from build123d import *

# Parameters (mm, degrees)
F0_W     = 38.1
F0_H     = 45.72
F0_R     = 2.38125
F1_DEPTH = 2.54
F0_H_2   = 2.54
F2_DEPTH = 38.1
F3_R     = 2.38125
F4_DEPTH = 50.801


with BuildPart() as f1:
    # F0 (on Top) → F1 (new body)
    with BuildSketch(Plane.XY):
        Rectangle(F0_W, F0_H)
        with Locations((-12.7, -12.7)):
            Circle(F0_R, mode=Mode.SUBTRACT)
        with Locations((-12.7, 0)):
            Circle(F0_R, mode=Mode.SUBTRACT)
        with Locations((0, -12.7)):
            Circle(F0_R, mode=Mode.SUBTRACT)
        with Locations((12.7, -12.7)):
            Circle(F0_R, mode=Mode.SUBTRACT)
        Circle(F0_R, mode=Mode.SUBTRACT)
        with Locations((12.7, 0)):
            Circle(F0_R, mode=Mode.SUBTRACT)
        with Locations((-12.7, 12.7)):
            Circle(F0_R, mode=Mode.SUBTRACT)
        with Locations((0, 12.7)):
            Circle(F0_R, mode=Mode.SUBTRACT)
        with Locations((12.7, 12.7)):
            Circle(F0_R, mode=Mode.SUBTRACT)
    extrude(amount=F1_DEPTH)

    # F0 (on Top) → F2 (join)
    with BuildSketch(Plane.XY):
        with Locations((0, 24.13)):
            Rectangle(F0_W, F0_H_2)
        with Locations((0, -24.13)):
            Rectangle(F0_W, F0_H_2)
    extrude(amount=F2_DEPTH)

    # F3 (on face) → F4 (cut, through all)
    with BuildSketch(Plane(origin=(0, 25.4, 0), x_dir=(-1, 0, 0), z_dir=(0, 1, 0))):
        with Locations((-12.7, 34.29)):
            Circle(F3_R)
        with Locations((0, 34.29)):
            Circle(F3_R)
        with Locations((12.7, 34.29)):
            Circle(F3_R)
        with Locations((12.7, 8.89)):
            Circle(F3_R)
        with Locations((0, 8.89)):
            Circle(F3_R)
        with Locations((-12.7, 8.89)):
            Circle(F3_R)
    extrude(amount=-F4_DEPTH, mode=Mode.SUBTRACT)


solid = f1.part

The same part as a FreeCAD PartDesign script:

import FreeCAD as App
import Part
import Sketcher

V = App.Vector
Q = App.Units.Quantity

doc = App.newDocument("Part")
body = doc.addObject("PartDesign::Body", "Body")

sketch1 = doc.addObject("Sketcher::SketchObject", "Sketch")
body.addObject(sketch1)
sketch1.AttachmentSupport = (doc.XY_Plane, [""])
sketch1.MapMode = "FlatFace"
sketch1.addGeometry([
    Part.LineSegment(V(-19.1, 22.9, 0), V(-19.1, -22.9, 0)),
    Part.LineSegment(V(-19.1, -22.9, 0), V(19.1, -22.9, 0)),
    Part.LineSegment(V(19.1, -22.9, 0), V(19.1, 22.9, 0)),
    Part.LineSegment(V(19.1, 22.9, 0), V(-19.1, 22.9, 0)),
    Part.Circle(V(-12.7, -12.7, 0), V(0, 0, 1), 2.4),
    Part.Circle(V(0, -12.7, 0), V(0, 0, 1), 2.4),
    Part.Circle(V(12.7, -12.7, 0), V(0, 0, 1), 2.4),
    Part.Circle(V(-12.7, 0, 0), V(0, 0, 1), 2.4),
    Part.Circle(V(-12.7, 12.7, 0), V(0, 0, 1), 2.4),
    Part.Circle(V(0, 0, 0), V(0, 0, 1), 2.4),
    Part.Circle(V(12.7, 0, 0), V(0, 0, 1), 2.4),
    Part.Circle(V(0, 12.7, 0), V(0, 0, 1), 2.4),
    Part.Circle(V(12.7, 12.7, 0), V(0, 0, 1), 2.4),
], False)
sketch1.addConstraint([
    Sketcher.Constraint("Coincident", 0, 2, 1, 1),
    Sketcher.Constraint("Coincident", 1, 2, 2, 1),
    Sketcher.Constraint("Coincident", 2, 2, 3, 1),
    Sketcher.Constraint("Coincident", 3, 2, 0, 1),
    Sketcher.Constraint("Vertical", 0),
    Sketcher.Constraint("Horizontal", 1),
    Sketcher.Constraint("Vertical", 2),
    Sketcher.Constraint("Horizontal", 3),
    Sketcher.Constraint("Coincident", 9, 3, -1, 1),
    Sketcher.Constraint("Equal", 4, 5),
    Sketcher.Constraint("Equal", 5, 6),
    Sketcher.Constraint("Equal", 6, 7),
    Sketcher.Constraint("Equal", 7, 8),
    Sketcher.Constraint("Equal", 8, 9),
    Sketcher.Constraint("Equal", 9, 10),
    Sketcher.Constraint("Equal", 10, 11),
    Sketcher.Constraint("Equal", 11, 12),
    Sketcher.Constraint("Symmetric", 6, 3, 8, 3, -1, 1),
    Sketcher.Constraint("Symmetric", 7, 3, 10, 3, -1, 1),
    Sketcher.Constraint("Symmetric", 5, 3, 11, 3, -1, 1),
    Sketcher.Constraint("Symmetric", 4, 3, 12, 3, -1, 1),
    Sketcher.Constraint("Symmetric", 0, 2, 2, 2, -1, 1),
    Sketcher.Constraint("Symmetric", 4, 3, 6, 3, -2),
    Sketcher.Constraint("PointOnObject", 5, 3, -2),
    Sketcher.Constraint("PointOnObject", 7, 3, -1),
    Sketcher.Constraint("Horizontal", 4, 3, 5, 3),
    Sketcher.Constraint("Vertical", 4, 3, 7, 3),
    Sketcher.Constraint("Diameter", 4, Q("0.1875 in")),
    Sketcher.Constraint("DistanceX", 1, 1, 1, 2, Q("1.5 in")),
    Sketcher.Constraint("DistanceY", 0, 2, 0, 1, Q("1.8 in")),
    Sketcher.Constraint("DistanceX", 4, 3, 6, 3, Q("1 in")),
    Sketcher.Constraint("DistanceY", 4, 3, 8, 3, Q("1 in")),
])
pad1 = doc.addObject("PartDesign::Pad", "Pad")
body.addObject(pad1)
pad1.Profile = sketch1
pad1.Length = Q("0.1 in")

sketch2 = doc.addObject("Sketcher::SketchObject", "Sketch001")
body.addObject(sketch2)
sketch2.AttachmentSupport = (doc.XY_Plane, [""])
sketch2.MapMode = "FlatFace"
sketch2.addGeometry([
    Part.LineSegment(V(-19.1, 25.4, 0), V(-19.1, 22.9, 0)),
    Part.LineSegment(V(-19.1, 22.9, 0), V(19.1, 22.9, 0)),
    Part.LineSegment(V(19.1, 22.9, 0), V(19.1, 25.4, 0)),
    Part.LineSegment(V(19.1, 25.4, 0), V(-19.1, 25.4, 0)),
    Part.LineSegment(V(-19.1, -22.9, 0), V(-19.1, -25.4, 0)),
    Part.LineSegment(V(-19.1, -25.4, 0), V(19.1, -25.4, 0)),
    Part.LineSegment(V(19.1, -25.4, 0), V(19.1, -22.9, 0)),
    Part.LineSegment(V(19.1, -22.9, 0), V(-19.1, -22.9, 0)),
], False)
sketch2.addConstraint([
    Sketcher.Constraint("Coincident", 0, 2, 1, 1),
    Sketcher.Constraint("Coincident", 1, 2, 2, 1),
    Sketcher.Constraint("Coincident", 2, 2, 3, 1),
    Sketcher.Constraint("Coincident", 3, 2, 0, 1),
    Sketcher.Constraint("Coincident", 4, 2, 5, 1),
    Sketcher.Constraint("Coincident", 5, 2, 6, 1),
    Sketcher.Constraint("Coincident", 6, 2, 7, 1),
    Sketcher.Constraint("Coincident", 7, 2, 4, 1),
    Sketcher.Constraint("Vertical", 0),
    Sketcher.Constraint("Horizontal", 1),
    Sketcher.Constraint("Vertical", 2),
    Sketcher.Constraint("Horizontal", 3),
    Sketcher.Constraint("Vertical", 4),
    Sketcher.Constraint("Horizontal", 5),
    Sketcher.Constraint("Vertical", 6),
    Sketcher.Constraint("Horizontal", 7),
    Sketcher.Constraint("Symmetric", 2, 2, 4, 2, -1, 1),
    Sketcher.Constraint("Symmetric", 0, 2, 6, 2, -1, 1),
    Sketcher.Constraint("Vertical", 3, 2, 4, 2),
    Sketcher.Constraint("DistanceX", 1, 1, 1, 2, Q("1.5 in")),
    Sketcher.Constraint("DistanceY", 0, 2, 0, 1, Q("0.1 in")),
    Sketcher.Constraint("DistanceY", -1, 1, 2, 2, Q("1 in")),
])
pad2 = doc.addObject("PartDesign::Pad", "Pad001")
body.addObject(pad2)
pad2.Profile = sketch2
pad2.Length = Q("1.5 in")

sketch3 = doc.addObject("Sketcher::SketchObject", "Sketch002")
body.addObject(sketch3)
sketch3.AttachmentSupport = (doc.XZ_Plane, [""])
sketch3.MapMode = "FlatFace"
sketch3.AttachmentOffset = App.Placement(V(0, 0, -1 * 25.4), App.Rotation())
sketch3.addGeometry([
    Part.Circle(V(12.7, 34.3, 0), V(0, 0, 1), 2.4),
    Part.Circle(V(0, 34.3, 0), V(0, 0, 1), 2.4),
    Part.Circle(V(-12.7, 34.3, 0), V(0, 0, 1), 2.4),
    Part.Circle(V(-12.7, 8.9, 0), V(0, 0, 1), 2.4),
    Part.Circle(V(0, 8.9, 0), V(0, 0, 1), 2.4),
    Part.Circle(V(12.7, 8.9, 0), V(0, 0, 1), 2.4),
], False)
sketch3.addConstraint([
    Sketcher.Constraint("Equal", 0, 1),
    Sketcher.Constraint("Equal", 1, 2),
    Sketcher.Constraint("Equal", 2, 3),
    Sketcher.Constraint("Equal", 3, 4),
    Sketcher.Constraint("Equal", 4, 5),
    Sketcher.Constraint("Symmetric", 0, 3, 2, 3, -2),
    Sketcher.Constraint("Symmetric", 3, 3, 5, 3, -2),
    Sketcher.Constraint("PointOnObject", 1, 3, -2),
    Sketcher.Constraint("PointOnObject", 4, 3, -2),
    Sketcher.Constraint("Horizontal", 0, 3, 1, 3),
    Sketcher.Constraint("Horizontal", 3, 3, 4, 3),
    Sketcher.Constraint("Vertical", 2, 3, 3, 3),
    Sketcher.Constraint("Diameter", 0, Q("0.1875 in")),
    Sketcher.Constraint("DistanceX", 2, 3, 0, 3, Q("1 in")),
    Sketcher.Constraint("DistanceY", 3, 3, 2, 3, Q("1 in")),
    Sketcher.Constraint("DistanceY", -1, 1, 0, 3, Q("1.35 in")),
])
pocket1 = doc.addObject("PartDesign::Pocket", "Pocket")
body.addObject(pocket1)
pocket1.Profile = sketch3
pocket1.Type = "ThroughAll"
pocket1.Reversed = True

doc.recompute()
